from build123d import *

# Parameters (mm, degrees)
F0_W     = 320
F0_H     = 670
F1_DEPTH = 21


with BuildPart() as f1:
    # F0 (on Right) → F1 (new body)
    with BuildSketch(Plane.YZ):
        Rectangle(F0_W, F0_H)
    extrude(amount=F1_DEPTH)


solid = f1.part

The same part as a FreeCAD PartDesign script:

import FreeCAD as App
import Part
import Sketcher


def add_polygon(sketch, points):
    """Adds a closed chain of lines whose ends are joined by coincident constraints."""
    first, n = sketch.GeometryCount, len(points)
    for a, b in zip(points, points[1:] + points[:1]):
        sketch.addGeometry(Part.LineSegment(App.Vector(*a, 0), App.Vector(*b, 0)), False)
    for i in range(n):
        sketch.addConstraint(Sketcher.Constraint("Coincident", first + i, 2, first + (i + 1) % n, 1))

doc = App.newDocument("Part")
body = doc.addObject("PartDesign::Body", "Body")

# Sketch on YZ plane
sketch1 = doc.addObject("Sketcher::SketchObject", "Sketch")
body.addObject(sketch1)
sketch1.AttachmentSupport = (doc.YZ_Plane, [""])
sketch1.MapMode = "FlatFace"
add_polygon(sketch1, [(-160, 335), (-160, -335), (160, -335), (160, 335)])  # lines 0-3
sketch1.addConstraint([
    Sketcher.Constraint("Vertical", 0),
    Sketcher.Constraint("Horizontal", 1),
    Sketcher.Constraint("Vertical", 2),
    Sketcher.Constraint("Horizontal", 3),
    Sketcher.Constraint("Symmetric", 0, 2, 2, 2, -1, 1),
    Sketcher.Constraint("DistanceX", 1, 1, 1, 2, 320.0),
    Sketcher.Constraint("DistanceY", 0, 2, 0, 1, 670.0),
])
pad1 = doc.addObject("PartDesign::Pad", "Pad")
body.addObject(pad1)
pad1.Profile = sketch1
pad1.Length = 21

doc.recompute()
